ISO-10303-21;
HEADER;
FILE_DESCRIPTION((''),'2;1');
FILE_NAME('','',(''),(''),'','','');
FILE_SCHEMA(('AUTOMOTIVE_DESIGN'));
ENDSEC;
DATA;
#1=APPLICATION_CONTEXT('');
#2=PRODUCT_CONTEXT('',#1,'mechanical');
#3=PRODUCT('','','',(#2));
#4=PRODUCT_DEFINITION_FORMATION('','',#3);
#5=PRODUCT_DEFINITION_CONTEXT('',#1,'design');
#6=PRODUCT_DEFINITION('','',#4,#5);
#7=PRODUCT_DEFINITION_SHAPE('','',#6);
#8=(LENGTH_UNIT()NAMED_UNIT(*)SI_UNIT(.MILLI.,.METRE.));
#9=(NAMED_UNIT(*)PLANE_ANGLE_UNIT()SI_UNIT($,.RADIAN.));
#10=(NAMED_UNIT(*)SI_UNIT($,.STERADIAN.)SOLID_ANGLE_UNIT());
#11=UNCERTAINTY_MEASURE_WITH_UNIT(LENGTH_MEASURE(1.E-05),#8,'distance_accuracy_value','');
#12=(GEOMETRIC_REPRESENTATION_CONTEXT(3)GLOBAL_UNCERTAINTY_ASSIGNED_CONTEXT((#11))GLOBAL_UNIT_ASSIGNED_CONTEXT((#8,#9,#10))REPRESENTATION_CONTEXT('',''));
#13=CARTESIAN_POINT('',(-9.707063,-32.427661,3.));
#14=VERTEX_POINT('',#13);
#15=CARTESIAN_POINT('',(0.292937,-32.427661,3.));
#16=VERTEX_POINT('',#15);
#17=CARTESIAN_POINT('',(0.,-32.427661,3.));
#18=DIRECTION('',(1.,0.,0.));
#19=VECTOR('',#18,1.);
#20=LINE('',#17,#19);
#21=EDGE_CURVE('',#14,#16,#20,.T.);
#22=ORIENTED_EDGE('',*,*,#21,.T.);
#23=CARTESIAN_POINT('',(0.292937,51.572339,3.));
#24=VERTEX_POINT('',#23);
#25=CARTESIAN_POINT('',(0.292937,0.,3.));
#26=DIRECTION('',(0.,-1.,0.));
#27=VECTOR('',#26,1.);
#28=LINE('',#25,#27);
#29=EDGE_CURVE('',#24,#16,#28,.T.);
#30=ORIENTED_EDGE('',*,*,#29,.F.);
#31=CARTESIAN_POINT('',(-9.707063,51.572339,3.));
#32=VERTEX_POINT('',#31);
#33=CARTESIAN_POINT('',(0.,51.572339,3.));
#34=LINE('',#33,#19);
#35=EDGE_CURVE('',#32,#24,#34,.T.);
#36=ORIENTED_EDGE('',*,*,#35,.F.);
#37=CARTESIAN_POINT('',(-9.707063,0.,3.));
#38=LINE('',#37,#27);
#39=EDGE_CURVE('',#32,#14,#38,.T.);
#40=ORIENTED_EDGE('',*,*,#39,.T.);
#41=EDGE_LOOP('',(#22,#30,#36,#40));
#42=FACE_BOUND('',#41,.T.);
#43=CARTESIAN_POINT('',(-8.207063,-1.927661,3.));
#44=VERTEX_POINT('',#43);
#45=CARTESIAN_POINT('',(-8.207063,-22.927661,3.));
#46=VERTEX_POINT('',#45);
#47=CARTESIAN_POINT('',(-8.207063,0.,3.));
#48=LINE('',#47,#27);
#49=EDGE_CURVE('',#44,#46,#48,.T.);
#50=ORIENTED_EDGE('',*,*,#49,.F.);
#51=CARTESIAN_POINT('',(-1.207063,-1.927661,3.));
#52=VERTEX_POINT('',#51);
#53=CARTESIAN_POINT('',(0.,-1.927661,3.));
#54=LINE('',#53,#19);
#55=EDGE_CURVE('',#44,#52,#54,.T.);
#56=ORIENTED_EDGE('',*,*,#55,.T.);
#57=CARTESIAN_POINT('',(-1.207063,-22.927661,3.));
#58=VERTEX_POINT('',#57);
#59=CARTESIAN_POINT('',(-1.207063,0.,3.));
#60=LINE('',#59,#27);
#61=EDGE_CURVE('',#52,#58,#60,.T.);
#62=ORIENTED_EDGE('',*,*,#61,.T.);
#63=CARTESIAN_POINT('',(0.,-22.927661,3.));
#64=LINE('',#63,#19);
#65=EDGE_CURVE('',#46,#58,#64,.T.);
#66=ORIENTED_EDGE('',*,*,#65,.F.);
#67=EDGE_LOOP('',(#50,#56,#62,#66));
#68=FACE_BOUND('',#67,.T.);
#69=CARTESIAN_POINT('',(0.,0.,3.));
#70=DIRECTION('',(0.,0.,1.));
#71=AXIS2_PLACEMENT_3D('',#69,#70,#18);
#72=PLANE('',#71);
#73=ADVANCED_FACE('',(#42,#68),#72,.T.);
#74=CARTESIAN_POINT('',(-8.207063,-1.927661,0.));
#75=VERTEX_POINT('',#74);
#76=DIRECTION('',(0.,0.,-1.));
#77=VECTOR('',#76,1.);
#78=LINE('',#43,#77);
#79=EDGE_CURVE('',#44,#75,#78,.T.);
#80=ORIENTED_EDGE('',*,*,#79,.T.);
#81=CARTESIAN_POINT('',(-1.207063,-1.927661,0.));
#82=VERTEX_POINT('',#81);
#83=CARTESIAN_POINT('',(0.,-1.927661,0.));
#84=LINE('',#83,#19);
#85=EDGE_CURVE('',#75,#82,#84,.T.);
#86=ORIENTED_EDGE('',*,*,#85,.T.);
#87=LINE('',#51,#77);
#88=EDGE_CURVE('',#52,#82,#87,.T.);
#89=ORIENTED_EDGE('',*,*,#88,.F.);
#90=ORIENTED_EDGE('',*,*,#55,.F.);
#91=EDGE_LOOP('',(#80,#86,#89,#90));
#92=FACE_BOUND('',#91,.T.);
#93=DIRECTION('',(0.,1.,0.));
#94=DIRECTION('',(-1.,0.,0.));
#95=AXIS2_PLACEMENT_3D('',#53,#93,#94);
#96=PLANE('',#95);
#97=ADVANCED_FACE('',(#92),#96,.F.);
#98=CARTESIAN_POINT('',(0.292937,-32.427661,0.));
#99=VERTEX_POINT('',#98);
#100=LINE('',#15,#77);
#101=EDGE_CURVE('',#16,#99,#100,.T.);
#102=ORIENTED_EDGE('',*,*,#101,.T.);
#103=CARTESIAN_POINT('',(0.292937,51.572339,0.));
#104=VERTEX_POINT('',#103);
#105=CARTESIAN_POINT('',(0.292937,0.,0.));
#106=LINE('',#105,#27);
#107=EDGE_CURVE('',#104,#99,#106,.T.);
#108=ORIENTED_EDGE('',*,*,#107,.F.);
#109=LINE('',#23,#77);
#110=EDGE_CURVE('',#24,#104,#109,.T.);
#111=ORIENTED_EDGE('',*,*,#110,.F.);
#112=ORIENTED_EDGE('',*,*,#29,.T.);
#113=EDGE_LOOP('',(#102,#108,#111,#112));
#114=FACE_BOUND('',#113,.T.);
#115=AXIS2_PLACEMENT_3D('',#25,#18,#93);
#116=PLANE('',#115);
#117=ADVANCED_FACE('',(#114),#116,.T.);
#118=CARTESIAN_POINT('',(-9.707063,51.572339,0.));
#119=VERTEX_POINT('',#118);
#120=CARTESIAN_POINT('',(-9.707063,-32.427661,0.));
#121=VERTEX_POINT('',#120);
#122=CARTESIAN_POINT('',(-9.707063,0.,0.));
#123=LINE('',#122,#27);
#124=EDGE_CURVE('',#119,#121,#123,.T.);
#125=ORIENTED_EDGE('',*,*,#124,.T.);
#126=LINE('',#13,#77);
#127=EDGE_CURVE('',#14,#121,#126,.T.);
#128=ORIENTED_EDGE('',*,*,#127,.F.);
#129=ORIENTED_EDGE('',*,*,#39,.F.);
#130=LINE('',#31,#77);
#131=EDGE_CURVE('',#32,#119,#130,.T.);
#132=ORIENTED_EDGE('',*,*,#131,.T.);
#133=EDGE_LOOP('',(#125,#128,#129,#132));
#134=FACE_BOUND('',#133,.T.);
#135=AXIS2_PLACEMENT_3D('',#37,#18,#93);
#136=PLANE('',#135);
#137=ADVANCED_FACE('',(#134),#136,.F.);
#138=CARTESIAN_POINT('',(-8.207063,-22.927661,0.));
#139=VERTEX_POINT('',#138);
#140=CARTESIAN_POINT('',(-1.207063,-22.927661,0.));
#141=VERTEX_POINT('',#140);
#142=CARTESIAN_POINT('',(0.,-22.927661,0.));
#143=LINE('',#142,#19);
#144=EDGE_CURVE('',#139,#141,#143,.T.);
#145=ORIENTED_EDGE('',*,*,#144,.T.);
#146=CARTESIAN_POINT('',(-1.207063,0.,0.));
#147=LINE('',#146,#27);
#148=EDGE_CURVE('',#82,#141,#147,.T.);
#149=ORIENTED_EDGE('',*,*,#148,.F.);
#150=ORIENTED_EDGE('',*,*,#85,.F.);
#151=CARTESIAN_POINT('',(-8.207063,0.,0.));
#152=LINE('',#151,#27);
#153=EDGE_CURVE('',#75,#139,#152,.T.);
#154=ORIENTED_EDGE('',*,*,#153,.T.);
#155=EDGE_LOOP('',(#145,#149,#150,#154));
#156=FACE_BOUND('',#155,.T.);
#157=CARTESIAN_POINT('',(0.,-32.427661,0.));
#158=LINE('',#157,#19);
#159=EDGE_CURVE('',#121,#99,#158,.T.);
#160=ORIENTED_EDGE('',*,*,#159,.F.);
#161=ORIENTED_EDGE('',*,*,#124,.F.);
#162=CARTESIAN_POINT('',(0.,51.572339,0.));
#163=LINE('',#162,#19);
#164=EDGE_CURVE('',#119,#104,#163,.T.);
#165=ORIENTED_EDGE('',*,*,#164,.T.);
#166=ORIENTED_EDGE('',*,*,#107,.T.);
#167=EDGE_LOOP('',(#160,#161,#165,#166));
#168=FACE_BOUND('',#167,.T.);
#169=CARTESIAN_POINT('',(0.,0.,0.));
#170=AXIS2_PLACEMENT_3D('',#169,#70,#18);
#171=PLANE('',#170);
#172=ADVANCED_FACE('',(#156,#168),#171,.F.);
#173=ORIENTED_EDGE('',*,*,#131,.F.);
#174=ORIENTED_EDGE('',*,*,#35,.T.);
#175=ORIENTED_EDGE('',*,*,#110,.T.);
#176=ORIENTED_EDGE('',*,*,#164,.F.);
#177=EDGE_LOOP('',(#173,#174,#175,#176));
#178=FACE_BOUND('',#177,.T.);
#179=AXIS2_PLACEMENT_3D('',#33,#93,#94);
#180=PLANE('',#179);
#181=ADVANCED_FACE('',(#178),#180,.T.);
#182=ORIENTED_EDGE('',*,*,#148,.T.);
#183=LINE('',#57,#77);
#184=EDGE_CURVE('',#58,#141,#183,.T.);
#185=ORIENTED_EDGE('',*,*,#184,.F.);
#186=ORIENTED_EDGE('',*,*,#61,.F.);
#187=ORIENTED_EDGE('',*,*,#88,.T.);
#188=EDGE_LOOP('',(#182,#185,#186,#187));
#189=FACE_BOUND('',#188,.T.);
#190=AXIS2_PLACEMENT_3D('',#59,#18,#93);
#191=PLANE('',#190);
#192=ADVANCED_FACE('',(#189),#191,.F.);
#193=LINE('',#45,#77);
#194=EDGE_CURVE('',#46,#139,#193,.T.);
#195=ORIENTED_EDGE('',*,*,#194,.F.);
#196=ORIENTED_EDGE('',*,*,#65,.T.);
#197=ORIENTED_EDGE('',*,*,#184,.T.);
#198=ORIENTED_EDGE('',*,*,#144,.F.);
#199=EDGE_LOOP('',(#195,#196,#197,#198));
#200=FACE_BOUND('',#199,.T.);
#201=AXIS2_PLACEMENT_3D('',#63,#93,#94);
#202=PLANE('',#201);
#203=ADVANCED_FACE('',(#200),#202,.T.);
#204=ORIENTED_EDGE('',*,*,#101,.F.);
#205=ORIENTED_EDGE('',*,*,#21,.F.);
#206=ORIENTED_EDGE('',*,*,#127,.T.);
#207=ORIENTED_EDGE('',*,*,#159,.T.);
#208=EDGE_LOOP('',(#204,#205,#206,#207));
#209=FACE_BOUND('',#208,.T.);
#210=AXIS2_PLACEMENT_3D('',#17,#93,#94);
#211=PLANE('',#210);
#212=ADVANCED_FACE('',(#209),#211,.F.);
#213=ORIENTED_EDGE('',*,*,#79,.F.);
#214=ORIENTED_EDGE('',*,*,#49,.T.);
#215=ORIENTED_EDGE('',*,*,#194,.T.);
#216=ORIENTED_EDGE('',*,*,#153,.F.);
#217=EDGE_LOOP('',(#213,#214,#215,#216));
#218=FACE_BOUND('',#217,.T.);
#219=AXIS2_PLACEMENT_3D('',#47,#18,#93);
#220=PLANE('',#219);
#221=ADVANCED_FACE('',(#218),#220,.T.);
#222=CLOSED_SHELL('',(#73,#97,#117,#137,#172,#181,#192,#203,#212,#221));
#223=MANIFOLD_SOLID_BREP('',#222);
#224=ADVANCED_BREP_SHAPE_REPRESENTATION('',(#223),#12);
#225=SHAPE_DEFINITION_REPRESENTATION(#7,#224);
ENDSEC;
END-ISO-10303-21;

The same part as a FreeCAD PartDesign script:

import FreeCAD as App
import Part
import Sketcher

V = App.Vector


def add_polygon(sketch, points):
    """Adds a closed chain of lines whose ends are joined by coincident constraints."""
    first, n = sketch.GeometryCount, len(points)
    for a, b in zip(points, points[1:] + points[:1]):
        sketch.addGeometry(Part.LineSegment(App.Vector(*a, 0), App.Vector(*b, 0)), False)
    for i in range(n):
        sketch.addConstraint(Sketcher.Constraint("Coincident", first + i, 2, first + (i + 1) % n, 1))

doc = App.newDocument("Part")
body = doc.addObject("PartDesign::Body", "Body")

# Sketch on XY plane
sketch1 = body.newObject("Sketcher::SketchObject", "Sketch")
sketch1.AttachmentSupport = (doc.getObject("XY_Plane"), [""])
sketch1.MapMode = "FlatFace"
add_polygon(sketch1, [(-10, 52), (-10, -32), (0, -32), (0, 52)])  # lines 0-3
add_polygon(sketch1, [(-1, -23), (-8, -23), (-8, -2), (-1, -2)])  # lines 4-7
sketch1.addConstraint([
    Sketcher.Constraint("Vertical", 0),
    Sketcher.Constraint("Horizontal", 1),
    Sketcher.Constraint("Vertical", 2),
    Sketcher.Constraint("Horizontal", 3),
    Sketcher.Constraint("Horizontal", 4),
    Sketcher.Constraint("Vertical", 5),
    Sketcher.Constraint("Horizontal", 6),
    Sketcher.Constraint("Vertical", 7),
    Sketcher.Constraint("DistanceX", 1, 1, 1, 2, 10.0),
    Sketcher.Constraint("DistanceX", 4, 2, 4, 1, 7.0),
    Sketcher.Constraint("DistanceY", 0, 2, 0, 1, 84.0),
    Sketcher.Constraint("DistanceY", 5, 1, 5, 2, 21.0),
    Sketcher.Constraint("DistanceX", 0, 2, 4, 2, 1.5),
    Sketcher.Constraint("DistanceY", 0, 2, 4, 2, 9.5),
    Sketcher.Constraint("DistanceY", 0, 2, -1, 1, 32.427661),
    Sketcher.Constraint("DistanceX", 0, 2, -1, 1, 9.707063),
])
pad1 = body.newObject("PartDesign::Pad", "Pad")
pad1.Profile = sketch1
pad1.Length = 3

doc.recompute()
